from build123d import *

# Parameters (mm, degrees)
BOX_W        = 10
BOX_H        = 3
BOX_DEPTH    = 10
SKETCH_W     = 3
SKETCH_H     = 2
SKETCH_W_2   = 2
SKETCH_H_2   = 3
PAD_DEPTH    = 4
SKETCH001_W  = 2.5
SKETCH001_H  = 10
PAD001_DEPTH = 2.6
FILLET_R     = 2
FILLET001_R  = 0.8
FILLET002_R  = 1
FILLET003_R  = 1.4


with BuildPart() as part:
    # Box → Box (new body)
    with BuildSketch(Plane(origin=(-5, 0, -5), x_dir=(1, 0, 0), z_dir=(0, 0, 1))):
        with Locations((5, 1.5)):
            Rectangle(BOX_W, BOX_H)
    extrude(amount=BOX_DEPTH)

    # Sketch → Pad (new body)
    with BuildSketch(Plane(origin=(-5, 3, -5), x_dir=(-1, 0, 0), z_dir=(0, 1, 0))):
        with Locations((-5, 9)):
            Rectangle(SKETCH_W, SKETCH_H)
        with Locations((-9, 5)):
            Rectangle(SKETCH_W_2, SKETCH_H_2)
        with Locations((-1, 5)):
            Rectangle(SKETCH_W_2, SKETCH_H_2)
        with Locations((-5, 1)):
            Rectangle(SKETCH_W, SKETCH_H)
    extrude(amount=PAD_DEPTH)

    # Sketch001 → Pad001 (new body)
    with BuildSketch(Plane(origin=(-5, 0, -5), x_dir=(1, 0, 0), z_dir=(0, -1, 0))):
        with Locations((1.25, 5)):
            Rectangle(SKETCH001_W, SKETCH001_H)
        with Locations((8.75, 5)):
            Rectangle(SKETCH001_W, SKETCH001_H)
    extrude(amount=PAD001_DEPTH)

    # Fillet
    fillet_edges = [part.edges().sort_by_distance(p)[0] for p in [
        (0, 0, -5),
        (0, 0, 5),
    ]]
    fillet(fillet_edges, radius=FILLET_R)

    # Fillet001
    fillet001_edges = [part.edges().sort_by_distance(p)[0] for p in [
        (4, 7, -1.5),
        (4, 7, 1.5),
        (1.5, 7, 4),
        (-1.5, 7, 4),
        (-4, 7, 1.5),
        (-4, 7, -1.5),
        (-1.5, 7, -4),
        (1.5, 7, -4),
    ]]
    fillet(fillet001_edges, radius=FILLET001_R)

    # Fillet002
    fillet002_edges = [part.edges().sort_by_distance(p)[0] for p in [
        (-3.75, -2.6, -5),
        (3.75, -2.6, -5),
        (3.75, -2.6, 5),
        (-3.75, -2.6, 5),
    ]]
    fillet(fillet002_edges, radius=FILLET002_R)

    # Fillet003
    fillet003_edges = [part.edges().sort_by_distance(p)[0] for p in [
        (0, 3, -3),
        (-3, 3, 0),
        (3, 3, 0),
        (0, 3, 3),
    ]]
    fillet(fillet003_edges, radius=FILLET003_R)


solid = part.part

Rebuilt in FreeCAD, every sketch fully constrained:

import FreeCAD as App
import Part
import Sketcher
from FreeCAD import Vector
Q = App.Units.Quantity


def edges_at(feature, points):
    """Names of the edges that pass closest to the given points."""
    edges = feature.Shape.Edges
    near = lambda p: min(range(len(edges)), key=lambda i: edges[i].distToShape(Part.Vertex(*p))[0])
    return sorted({f"Edge{near(p) + 1}" for p in points})


def add_polygon(sketch, points):
    """Adds a closed chain of lines whose ends are joined by coincident constraints."""
    first, n = sketch.GeometryCount, len(points)
    for a, b in zip(points, points[1:] + points[:1]):
        sketch.addGeometry(Part.LineSegment(App.Vector(*a, 0), App.Vector(*b, 0)), False)
    for i in range(n):
        sketch.addConstraint(Sketcher.Constraint("Coincident", first + i, 2, first + (i + 1) % n, 1))

doc = App.newDocument("Part")
body = doc.addObject("PartDesign::Body", "Body")

# Sketch on XY plane
sketch1 = doc.addObject("Sketcher::SketchObject", "Sketch")
body.addObject(sketch1)
sketch1.AttachmentSupport = (doc.XY_Plane, [""])
sketch1.MapMode = "FlatFace"
sketch1.AttachmentOffset = App.Placement(Vector(0, 0, -5), App.Rotation())
add_polygon(sketch1, [(-5, 3), (-5, 0), (5, 0), (5, 3)])  # lines 0-3
sketch1.addConstraint(Sketcher.Constraint("Vertical", 0))
sketch1.addConstraint(Sketcher.Constraint("Horizontal", 1))
sketch1.addConstraint(Sketcher.Constraint("Vertical", 2))
sketch1.addConstraint(Sketcher.Constraint("Horizontal", 3))
sketch1.addConstraint(Sketcher.Constraint("Symmetric", 0, 2, 1, 2, -1, 1))
sketch1.addConstraint(Sketcher.Constraint("DistanceX", 1, 1, 1, 2, Q("10 mm")))
sketch1.addConstraint(Sketcher.Constraint("DistanceY", 0, 2, 0, 1, Q("3 mm")))
pad1 = doc.addObject("PartDesign::Pad", "Pad")
body.addObject(pad1)
pad1.Profile = sketch1
pad1.Length = 10

# Sketch on XZ plane
sketch2 = doc.addObject("Sketcher::SketchObject", "Sketch001")
body.addObject(sketch2)
sketch2.AttachmentSupport = (doc.XZ_Plane, [""])
sketch2.MapMode = "FlatFace"
sketch2.AttachmentOffset = App.Placement(Vector(0, 0, -3), App.Rotation())
add_polygon(sketch2, [(1.5, 5), (1.5, 3), (-1.5, 3), (-1.5, 5)])  # lines 0-3
add_polygon(sketch2, [(5, 1.5), (5, -1.5), (3, -1.5), (3, 1.5)])  # lines 4-7
add_polygon(sketch2, [(-3, 1.5), (-3, -1.5), (-5, -1.5), (-5, 1.5)])  # lines 8-11
add_polygon(sketch2, [(1.5, -3), (1.5, -5), (-1.5, -5), (-1.5, -3)])  # lines 12-15
sketch2.addConstraint(Sketcher.Constraint("Vertical", 0))
sketch2.addConstraint(Sketcher.Constraint("Horizontal", 1))
sketch2.addConstraint(Sketcher.Constraint("Vertical", 2))
sketch2.addConstraint(Sketcher.Constraint("Horizontal", 3))
sketch2.addConstraint(Sketcher.Constraint("Vertical", 4))
sketch2.addConstraint(Sketcher.Constraint("Horizontal", 5))
sketch2.addConstraint(Sketcher.Constraint("Vertical", 6))
sketch2.addConstraint(Sketcher.Constraint("Horizontal", 7))
sketch2.addConstraint(Sketcher.Constraint("Vertical", 8))
sketch2.addConstraint(Sketcher.Constraint("Horizontal", 9))
sketch2.addConstraint(Sketcher.Constraint("Vertical", 10))
sketch2.addConstraint(Sketcher.Constraint("Horizontal", 11))
sketch2.addConstraint(Sketcher.Constraint("Vertical", 12))
sketch2.addConstraint(Sketcher.Constraint("Horizontal", 13))
sketch2.addConstraint(Sketcher.Constraint("Vertical", 14))
sketch2.addConstraint(Sketcher.Constraint("Horizontal", 15))
sketch2.addConstraint(Sketcher.Constraint("Symmetric", 6, 2, 8, 2, -1, 1))
sketch2.addConstraint(Sketcher.Constraint("Symmetric", 4, 2, 10, 2, -1, 1))
sketch2.addConstraint(Sketcher.Constraint("Symmetric", 2, 2, 12, 2, -1, 1))
sketch2.addConstraint(Sketcher.Constraint("Symmetric", 0, 2, 14, 2, -1, 1))
sketch2.addConstraint(Sketcher.Constraint("Horizontal", 5, 2, 8, 2))
sketch2.addConstraint(Sketcher.Constraint("Vertical", 3, 2, 12, 2))
sketch2.addConstraint(Sketcher.Constraint("Equal", 11, 0))
sketch2.addConstraint(Sketcher.Constraint("Equal", 15, 4))
sketch2.addConstraint(Sketcher.Constraint("DistanceX", 1, 2, 1, 1, Q("3 mm")))
sketch2.addConstraint(Sketcher.Constraint("DistanceX", 5, 2, 5, 1, Q("2 mm")))
sketch2.addConstraint(Sketcher.Constraint("DistanceY", -1, 1, 0, 2, Q("3 mm")))
sketch2.addConstraint(Sketcher.Constraint("DistanceX", -1, 1, 4, 2, Q("5 mm")))
pad2 = doc.addObject("PartDesign::Pad", "Pad001")
body.addObject(pad2)
pad2.Profile = sketch2
pad2.Length = 4
pad2.Reversed = True

# Sketch on XZ plane
sketch3 = doc.addObject("Sketcher::SketchObject", "Sketch002")
body.addObject(sketch3)
sketch3.AttachmentSupport = (doc.XZ_Plane, [""])
sketch3.MapMode = "FlatFace"
add_polygon(sketch3, [(-5, 5), (-5, -5), (-2.5, -5), (-2.5, 5)])  # lines 0-3
add_polygon(sketch3, [(2.5, 5), (2.5, -5), (5, -5), (5, 5)])  # lines 4-7
sketch3.addConstraint(Sketcher.Constraint("Vertical", 0))
sketch3.addConstraint(Sketcher.Constraint("Horizontal", 1))
sketch3.addConstraint(Sketcher.Constraint("Vertical", 2))
sketch3.addConstraint(Sketcher.Constraint("Horizontal", 3))
sketch3.addConstraint(Sketcher.Constraint("Vertical", 4))
sketch3.addConstraint(Sketcher.Constraint("Horizontal", 5))
sketch3.addConstraint(Sketcher.Constraint("Vertical", 6))
sketch3.addConstraint(Sketcher.Constraint("Horizontal", 7))
sketch3.addConstraint(Sketcher.Constraint("Symmetric", 2, 2, 4, 2, -1, 1))
sketch3.addConstraint(Sketcher.Constraint("Symmetric", 0, 2, 6, 2, -1, 1))
sketch3.addConstraint(Sketcher.Constraint("Horizontal", 1, 2, 4, 2))
sketch3.addConstraint(Sketcher.Constraint("DistanceY", 0, 2, 0, 1, Q("10 mm")))
sketch3.addConstraint(Sketcher.Constraint("DistanceX", 1, 1, 1, 2, Q("2.5 mm")))
sketch3.addConstraint(Sketcher.Constraint("DistanceX", 0, 2, -1, 1, Q("5 mm")))
pad3 = doc.addObject("PartDesign::Pad", "Pad002")
body.addObject(pad3)
pad3.Profile = sketch3
pad3.Length = 2.6
doc.recompute()

fillet = doc.addObject("PartDesign::Fillet", "Fillet")
body.addObject(fillet)
fillet.Base = (pad3, edges_at(pad3, [(0, 0, -5), (0, 0, 5)]))
fillet.Radius = 2
doc.recompute()

fillet2 = doc.addObject("PartDesign::Fillet", "Fillet001")
body.addObject(fillet2)
fillet2.Base = (fillet, edges_at(fillet, [
    (4, 7, -1.5),
    (4, 7, 1.5),
    (1.5, 7, 4),
    (-1.5, 7, 4),
    (-4, 7, 1.5),
    (-4, 7, -1.5),
    (-1.5, 7, -4),
    (1.5, 7, -4),
]))
fillet2.Radius = 0.8
doc.recompute()

fillet3 = doc.addObject("PartDesign::Fillet", "Fillet002")
body.addObject(fillet3)
fillet3.Base = (fillet2, edges_at(fillet2, [
    (-3.75, -2.6, -5),
    (3.75, -2.6, -5),
    (3.75, -2.6, 5),
    (-3.75, -2.6, 5),
]))
fillet3.Radius = 1
doc.recompute()

fillet4 = doc.addObject("PartDesign::Fillet", "Fillet003")
body.addObject(fillet4)
fillet4.Base = (fillet3, edges_at(fillet3, [
    (0, 3, -3),
    (-3, 3, 0),
    (3, 3, 0),
    (0, 3, 3),
]))
fillet4.Radius = 1.4

doc.recompute()
